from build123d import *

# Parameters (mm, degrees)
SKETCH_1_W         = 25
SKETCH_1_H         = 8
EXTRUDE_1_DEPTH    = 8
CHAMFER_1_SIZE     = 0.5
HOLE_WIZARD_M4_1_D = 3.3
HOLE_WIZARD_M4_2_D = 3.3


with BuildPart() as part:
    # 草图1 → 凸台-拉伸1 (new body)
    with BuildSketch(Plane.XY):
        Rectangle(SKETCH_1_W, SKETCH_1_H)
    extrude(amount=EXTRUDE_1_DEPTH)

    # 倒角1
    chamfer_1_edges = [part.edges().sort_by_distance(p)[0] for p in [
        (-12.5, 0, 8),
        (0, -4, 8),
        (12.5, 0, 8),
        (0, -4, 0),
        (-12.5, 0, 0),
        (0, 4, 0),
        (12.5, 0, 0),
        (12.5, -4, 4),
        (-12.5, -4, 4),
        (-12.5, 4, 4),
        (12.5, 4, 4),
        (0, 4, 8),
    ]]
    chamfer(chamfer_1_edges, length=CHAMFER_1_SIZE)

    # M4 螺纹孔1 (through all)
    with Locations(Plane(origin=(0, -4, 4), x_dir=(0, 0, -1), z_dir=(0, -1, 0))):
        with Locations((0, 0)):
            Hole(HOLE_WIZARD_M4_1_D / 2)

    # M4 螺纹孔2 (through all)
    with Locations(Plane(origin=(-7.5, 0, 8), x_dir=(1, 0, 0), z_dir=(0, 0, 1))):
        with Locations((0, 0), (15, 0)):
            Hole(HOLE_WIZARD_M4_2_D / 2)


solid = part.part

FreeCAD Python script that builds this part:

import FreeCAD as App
import Part
import Sketcher
Q = App.Units.Quantity


def add_polygon(sketch, points):
    """Adds a closed chain of lines whose ends are joined by coincident constraints."""
    first, n = sketch.GeometryCount, len(points)
    for a, b in zip(points, points[1:] + points[:1]):
        sketch.addGeometry(Part.LineSegment(App.Vector(*a, 0), App.Vector(*b, 0)), False)
    for i in range(n):
        sketch.addConstraint(Sketcher.Constraint("Coincident", first + i, 2, first + (i + 1) % n, 1))

doc = App.newDocument("Part")
params = doc.addObject("Spreadsheet::Sheet", "Params")
for row, (alias, value) in enumerate([
    ("sketch1_width", "25 mm"),
    ("sketch1_height", "8 mm"),
    ("pad1_length", "8 mm"),
    ("chamfer_size", "0.5 mm"),
    ("sketch2_diameter", "3.3 mm"),
    ("hole_diameter", "3.3 mm"),
    ("sketch3_diameter", "3.3 mm"),
    ("hole2_diameter", "3.3 mm"),
], start=1):
    params.set(f"A{row}", alias)
    params.set(f"B{row}", "=" + value)
    params.setAlias(f"B{row}", alias)

body = doc.addObject("PartDesign::Body", "Body")

# Sketch on XY plane
sketch1 = body.newObject("Sketcher::SketchObject", "Sketch")
sketch1.AttachmentSupport = (doc.getObject("XY_Plane"), [""])
sketch1.MapMode = "FlatFace"
add_polygon(sketch1, [(-12, 4), (-12, -4), (12, -4), (12, 4)])  # lines 0-3
sketch1.addConstraint([
    Sketcher.Constraint("Vertical", 0),
    Sketcher.Constraint("Horizontal", 1),
    Sketcher.Constraint("Vertical", 2),
    Sketcher.Constraint("Horizontal", 3),
    Sketcher.Constraint("Symmetric", 0, 2, 2, 2, -1, 1),
    Sketcher.Constraint("DistanceX", 1, 1, 1, 2, Q("25 mm")),
    Sketcher.Constraint("DistanceY", 0, 2, 0, 1, Q("8 mm")),
])
sketch1.setExpression("Constraints[9]", "Params.sketch1_width")
sketch1.setExpression("Constraints[10]", "Params.sketch1_height")
pad1 = body.newObject("PartDesign::Pad", "Pad")
pad1.Profile = sketch1
pad1.setExpression("Length", "Params.pad1_length")
doc.recompute()

chamfer = body.newObject("PartDesign::Chamfer", "Chamfer")
chamfer.Base = (pad1, ["Edge1"])
chamfer.UseAllEdges = True
chamfer.setExpression("Size", "Params.chamfer_size")

# Sketch on XZ plane
sketch2 = body.newObject("Sketcher::SketchObject", "Sketch001")
sketch2.AttachmentSupport = (doc.getObject("XZ_Plane"), [""])
sketch2.MapMode = "FlatFace"
sketch2.AttachmentOffset = App.Placement(App.Vector(0, 0, 4), App.Rotation())
sketch2.addGeometry(Part.Circle(App.Vector(0, 4, 0), App.Vector(0, 0, 1), 1.6), False)
sketch2.addConstraint([
    Sketcher.Constraint("PointOnObject", 0, 3, -2),
    Sketcher.Constraint("Diameter", 0, Q("3.3 mm")),
    Sketcher.Constraint("DistanceY", -1, 1, 0, 3, Q("4 mm")),
])
sketch2.setExpression("Constraints[1]", "Params.sketch2_diameter")
doc.recompute()
hole = body.newObject("PartDesign::Hole", "Hole")
hole.Profile = sketch2
hole.ThreadType = "None"
hole.setExpression("Diameter", "Params.hole_diameter")
hole.DepthType = "ThroughAll"

# Sketch on XY plane
sketch3 = body.newObject("Sketcher::SketchObject", "Sketch002")
sketch3.AttachmentSupport = (doc.getObject("XY_Plane"), [""])
sketch3.MapMode = "FlatFace"
sketch3.AttachmentOffset = App.Placement(App.Vector(0, 0, 8), App.Rotation())
sketch3.addGeometry([
    Part.Circle(App.Vector(-7.5, 0, 0), App.Vector(0, 0, 1), 1.6),
    Part.Circle(App.Vector(7.5, 0, 0), App.Vector(0, 0, 1), 1.6),
], False)
sketch3.addConstraint([
    Sketcher.Constraint("Equal", 0, 1),
    Sketcher.Constraint("Symmetric", 0, 3, 1, 3, -1, 1),
    Sketcher.Constraint("PointOnObject", 0, 3, -1),
    Sketcher.Constraint("Diameter", 0, Q("3.3 mm")),
    Sketcher.Constraint("DistanceX", 0, 3, 1, 3, Q("15 mm")),
])
sketch3.setExpression("Constraints[3]", "Params.sketch3_diameter")
doc.recompute()
hole2 = body.newObject("PartDesign::Hole", "Hole001")
hole2.Profile = sketch3
hole2.ThreadType = "None"
hole2.setExpression("Diameter", "Params.hole2_diameter")
hole2.DepthType = "ThroughAll"

doc.recompute()
